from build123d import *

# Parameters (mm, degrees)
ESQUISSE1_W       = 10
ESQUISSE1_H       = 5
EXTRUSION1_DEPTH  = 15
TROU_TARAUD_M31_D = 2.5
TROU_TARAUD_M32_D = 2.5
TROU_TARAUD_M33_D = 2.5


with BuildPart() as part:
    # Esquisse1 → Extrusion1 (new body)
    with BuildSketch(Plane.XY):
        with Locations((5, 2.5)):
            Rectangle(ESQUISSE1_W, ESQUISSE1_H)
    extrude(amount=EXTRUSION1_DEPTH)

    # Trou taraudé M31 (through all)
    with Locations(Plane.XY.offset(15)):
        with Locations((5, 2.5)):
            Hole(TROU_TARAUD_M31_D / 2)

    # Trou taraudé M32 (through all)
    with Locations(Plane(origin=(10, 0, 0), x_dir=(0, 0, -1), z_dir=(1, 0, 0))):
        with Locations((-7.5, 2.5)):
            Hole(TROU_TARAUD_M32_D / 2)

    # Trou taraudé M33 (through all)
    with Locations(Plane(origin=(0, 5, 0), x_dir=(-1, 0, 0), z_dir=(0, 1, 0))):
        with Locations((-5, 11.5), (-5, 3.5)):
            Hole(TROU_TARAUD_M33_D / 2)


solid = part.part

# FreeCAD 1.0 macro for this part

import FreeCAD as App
import Part
import Sketcher
from FreeCAD import Vector
Q = App.Units.Quantity

doc = App.newDocument("Part")
body = doc.addObject("PartDesign::Body", "Body")

sketch1 = doc.addObject("Sketcher::SketchObject", "Sketch")
body.addObject(sketch1)
sketch1.AttachmentSupport = (doc.XY_Plane, [""])
sketch1.MapMode = "FlatFace"
sketch1.addGeometry([
    Part.LineSegment(Vector(0, 5, 0), Vector(0, 0, 0)),
    Part.LineSegment(Vector(0, 0, 0), Vector(10, 0, 0)),
    Part.LineSegment(Vector(10, 0, 0), Vector(10, 5, 0)),
    Part.LineSegment(Vector(10, 5, 0), Vector(0, 5, 0)),
], False)
sketch1.addConstraint([
    Sketcher.Constraint("Coincident", 0, 2, 1, 1),
    Sketcher.Constraint("Coincident", 1, 2, 2, 1),
    Sketcher.Constraint("Coincident", 2, 2, 3, 1),
    Sketcher.Constraint("Coincident", 3, 2, 0, 1),
    Sketcher.Constraint("Vertical", 0),
    Sketcher.Constraint("Horizontal", 1),
    Sketcher.Constraint("Vertical", 2),
    Sketcher.Constraint("Horizontal", 3),
    Sketcher.Constraint("Coincident", 0, 2, -1, 1),
    Sketcher.Constraint("DistanceX", 1, 1, 1, 2, Q("10 mm")),
    Sketcher.Constraint("DistanceY", 0, 2, 0, 1, Q("5 mm")),
])
pad1 = doc.addObject("PartDesign::Pad", "Pad")
body.addObject(pad1)
pad1.Profile = sketch1
pad1.Length = 15

sketch2 = doc.addObject("Sketcher::SketchObject", "Sketch001")
body.addObject(sketch2)
sketch2.AttachmentSupport = (doc.XY_Plane, [""])
sketch2.MapMode = "FlatFace"
sketch2.AttachmentOffset = App.Placement(Vector(0, 0, 15), App.Rotation())
sketch2.addGeometry(Part.Circle(Vector(5, 2.5, 0), Vector(0, 0, 1), 1.2), False)
sketch2.addConstraint([
    Sketcher.Constraint("Diameter", 0, Q("2.5 mm")),
    Sketcher.Constraint("DistanceX", -1, 1, 0, 3, Q("5 mm")),
    Sketcher.Constraint("DistanceY", -1, 1, 0, 3, Q("2.5 mm")),
])
doc.recompute()
hole = doc.addObject("PartDesign::Hole", "Hole")
body.addObject(hole)
hole.Profile = sketch2
hole.ThreadType = "None"
hole.Diameter = 2.5
hole.DepthType = "ThroughAll"

sketch3 = doc.addObject("Sketcher::SketchObject", "Sketch002")
body.addObject(sketch3)
sketch3.AttachmentSupport = (doc.YZ_Plane, [""])
sketch3.MapMode = "FlatFace"
sketch3.AttachmentOffset = App.Placement(Vector(0, 0, 10), App.Rotation())
sketch3.addGeometry(Part.Circle(Vector(2.5, 7.5, 0), Vector(0, 0, 1), 1.2), False)
sketch3.addConstraint([
    Sketcher.Constraint("Diameter", 0, Q("2.5 mm")),
    Sketcher.Constraint("DistanceX", -1, 1, 0, 3, Q("2.5 mm")),
    Sketcher.Constraint("DistanceY", -1, 1, 0, 3, Q("7.5 mm")),
])
doc.recompute()
hole2 = doc.addObject("PartDesign::Hole", "Hole001")
body.addObject(hole2)
hole2.Profile = sketch3
hole2.ThreadType = "None"
hole2.Diameter = 2.5
hole2.DepthType = "ThroughAll"

sketch4 = doc.addObject("Sketcher::SketchObject", "Sketch003")
body.addObject(sketch4)
sketch4.AttachmentSupport = (doc.XZ_Plane, [""])
sketch4.MapMode = "FlatFace"
sketch4.AttachmentOffset = App.Placement(Vector(0, 0, -5), App.Rotation())
sketch4.addGeometry([
    Part.Circle(Vector(5, 11.5, 0), Vector(0, 0, 1), 1.2),
    Part.Circle(Vector(5, 3.5, 0), Vector(0, 0, 1), 1.2),
], False)
sketch4.addConstraint([
    Sketcher.Constraint("Equal", 0, 1),
    Sketcher.Constraint("Vertical", 0, 3, 1, 3),
    Sketcher.Constraint("Diameter", 0, Q("2.5 mm")),
    Sketcher.Constraint("DistanceX", -1, 1, 0, 3, Q("5 mm")),
    Sketcher.Constraint("DistanceY", 1, 3, 0, 3, Q("8 mm")),
    Sketcher.Constraint("DistanceY", -1, 1, 0, 3, Q("11.5 mm")),
])
doc.recompute()
hole3 = doc.addObject("PartDesign::Hole", "Hole002")
body.addObject(hole3)
hole3.Profile = sketch4
hole3.ThreadType = "None"
hole3.Diameter = 2.5
hole3.DepthType = "ThroughAll"
hole3.Reversed = True

doc.recompute()
